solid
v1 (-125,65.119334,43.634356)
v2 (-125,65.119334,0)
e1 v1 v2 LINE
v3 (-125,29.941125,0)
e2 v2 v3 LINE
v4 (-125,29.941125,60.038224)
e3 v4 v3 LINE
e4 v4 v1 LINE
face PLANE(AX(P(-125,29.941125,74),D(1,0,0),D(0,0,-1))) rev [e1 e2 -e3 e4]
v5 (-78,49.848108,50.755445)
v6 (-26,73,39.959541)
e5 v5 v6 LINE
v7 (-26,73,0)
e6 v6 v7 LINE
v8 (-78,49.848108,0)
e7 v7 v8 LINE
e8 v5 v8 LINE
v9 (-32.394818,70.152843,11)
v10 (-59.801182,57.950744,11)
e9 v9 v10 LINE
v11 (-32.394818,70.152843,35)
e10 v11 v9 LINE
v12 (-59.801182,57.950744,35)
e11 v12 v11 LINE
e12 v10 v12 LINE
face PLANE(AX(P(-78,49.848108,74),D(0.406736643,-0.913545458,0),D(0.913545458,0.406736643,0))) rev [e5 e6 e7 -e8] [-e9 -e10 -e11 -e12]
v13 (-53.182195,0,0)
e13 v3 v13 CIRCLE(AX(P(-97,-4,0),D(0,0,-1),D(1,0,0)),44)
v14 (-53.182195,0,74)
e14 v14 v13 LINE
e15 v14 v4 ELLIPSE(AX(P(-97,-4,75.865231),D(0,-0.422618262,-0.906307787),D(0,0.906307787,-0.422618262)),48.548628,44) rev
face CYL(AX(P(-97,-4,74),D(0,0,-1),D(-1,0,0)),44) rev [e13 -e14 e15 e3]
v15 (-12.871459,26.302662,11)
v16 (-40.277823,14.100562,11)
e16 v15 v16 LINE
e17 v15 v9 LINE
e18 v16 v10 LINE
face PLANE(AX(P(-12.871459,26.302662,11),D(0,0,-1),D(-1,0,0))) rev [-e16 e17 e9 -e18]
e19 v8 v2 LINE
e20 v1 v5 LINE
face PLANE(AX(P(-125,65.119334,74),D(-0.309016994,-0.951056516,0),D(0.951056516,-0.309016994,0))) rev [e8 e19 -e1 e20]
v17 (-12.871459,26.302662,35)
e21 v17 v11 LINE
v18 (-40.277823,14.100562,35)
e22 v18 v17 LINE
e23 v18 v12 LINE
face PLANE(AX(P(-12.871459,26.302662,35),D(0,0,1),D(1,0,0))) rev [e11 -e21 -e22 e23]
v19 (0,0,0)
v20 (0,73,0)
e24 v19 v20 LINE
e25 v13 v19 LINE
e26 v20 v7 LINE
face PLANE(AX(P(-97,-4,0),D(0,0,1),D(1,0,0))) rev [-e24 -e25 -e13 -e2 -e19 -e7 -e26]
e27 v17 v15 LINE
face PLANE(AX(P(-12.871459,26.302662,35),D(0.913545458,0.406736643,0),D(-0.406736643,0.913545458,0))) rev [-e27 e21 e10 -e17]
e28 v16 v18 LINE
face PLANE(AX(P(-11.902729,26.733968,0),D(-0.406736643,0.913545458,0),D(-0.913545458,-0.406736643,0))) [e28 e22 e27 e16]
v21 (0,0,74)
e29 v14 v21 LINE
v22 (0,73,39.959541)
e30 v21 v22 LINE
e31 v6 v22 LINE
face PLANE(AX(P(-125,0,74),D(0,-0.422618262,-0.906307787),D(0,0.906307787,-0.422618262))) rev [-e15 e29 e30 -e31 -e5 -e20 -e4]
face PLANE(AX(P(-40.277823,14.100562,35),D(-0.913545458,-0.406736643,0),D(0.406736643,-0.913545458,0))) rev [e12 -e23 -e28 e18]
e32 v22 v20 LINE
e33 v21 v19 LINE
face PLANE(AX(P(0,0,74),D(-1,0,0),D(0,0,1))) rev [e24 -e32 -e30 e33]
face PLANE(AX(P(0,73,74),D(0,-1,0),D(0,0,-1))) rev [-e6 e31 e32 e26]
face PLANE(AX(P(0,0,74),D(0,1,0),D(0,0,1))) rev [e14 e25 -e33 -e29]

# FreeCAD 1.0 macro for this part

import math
import FreeCAD as App
import Part
import Sketcher
from FreeCAD import Vector
Q = App.Units.Quantity


def add_polygon(sketch, points):
    """Adds a closed chain of lines whose ends are joined by coincident constraints."""
    first, n = sketch.GeometryCount, len(points)
    for a, b in zip(points, points[1:] + points[:1]):
        sketch.addGeometry(Part.LineSegment(App.Vector(*a, 0), App.Vector(*b, 0)), False)
    for i in range(n):
        sketch.addConstraint(Sketcher.Constraint("Coincident", first + i, 2, first + (i + 1) % n, 1))

doc = App.newDocument("Part")
body = doc.addObject("PartDesign::Body", "Body")

sketch1 = body.newObject("Sketcher::SketchObject", "Sketch")
sketch1.AttachmentSupport = (doc.getObject("XY_Plane"), [""])
sketch1.MapMode = "FlatFace"
sketch1.addGeometry(Part.LineSegment(Vector(-53, 0, 0), Vector(0, 0, 0)), False)
sketch1.addGeometry(Part.LineSegment(Vector(0, 0, 0), Vector(0, 73, 0)), False)
sketch1.addGeometry(Part.LineSegment(Vector(0, 73, 0), Vector(-26, 73, 0)), False)
sketch1.addGeometry(Part.LineSegment(Vector(-26, 73, 0), Vector(-78, 50, 0)), False)
sketch1.addGeometry(Part.LineSegment(Vector(-78, 50, 0), Vector(-125, 65, 0)), False)
sketch1.addGeometry(Part.LineSegment(Vector(-125, 65, 0), Vector(-125, 30, 0)), False)
sketch1.addGeometry(Part.ArcOfCircle(Part.Circle(Vector(-97, -4, 0), Vector(0, 0, 1), 44), math.radians(5), math.radians(130)), False)
sketch1.addConstraint(Sketcher.Constraint("Coincident", 0, 2, 1, 1))
sketch1.addConstraint(Sketcher.Constraint("Coincident", 1, 2, 2, 1))
sketch1.addConstraint(Sketcher.Constraint("Coincident", 2, 2, 3, 1))
sketch1.addConstraint(Sketcher.Constraint("Coincident", 3, 2, 4, 1))
sketch1.addConstraint(Sketcher.Constraint("Coincident", 4, 2, 5, 1))
sketch1.addConstraint(Sketcher.Constraint("Coincident", 5, 2, 6, 2))
sketch1.addConstraint(Sketcher.Constraint("Coincident", 6, 1, 0, 1))
sketch1.addConstraint(Sketcher.Constraint("Horizontal", 0))
sketch1.addConstraint(Sketcher.Constraint("Vertical", 1))
sketch1.addConstraint(Sketcher.Constraint("Horizontal", 2))
sketch1.addConstraint(Sketcher.Constraint("Vertical", 5))
sketch1.addConstraint(Sketcher.Constraint("Coincident", 0, 2, -1, 1))
sketch1.addConstraint(Sketcher.Constraint("Radius", 6, 44.0))
sketch1.addConstraint(Sketcher.Constraint("DistanceX", 2, 2, 2, 1, 26.0))
sketch1.addConstraint(Sketcher.Constraint("DistanceY", 1, 1, 1, 2, 73.0))
sketch1.addConstraint(Sketcher.Constraint("Angle", 3, Q("-156 deg")))
sketch1.addConstraint(Sketcher.Constraint("Angle", 4, Q("162 deg")))
sketch1.addConstraint(Sketcher.Constraint("DistanceX", 6, 3, -1, 1, 97.0))
sketch1.addConstraint(Sketcher.Constraint("DistanceY", 6, 3, -1, 1, 4.0))
sketch1.addConstraint(Sketcher.Constraint("DistanceX", 3, 2, -1, 1, 78.0))
sketch1.addConstraint(Sketcher.Constraint("DistanceX", 4, 2, -1, 1, 125.0))
pad1 = body.newObject("PartDesign::Pad", "Pad")
pad1.Profile = sketch1
pad1.Length = 74

sketch2 = body.newObject("Sketcher::SketchObject", "Sketch001")
sketch2.AttachmentSupport = (doc.getObject("YZ_Plane"), [""])
sketch2.MapMode = "FlatFace"
add_polygon(sketch2, [(0, 74), (73, 40), (73, 74)])
sketch2.addConstraint(Sketcher.Constraint("Vertical", 1))
sketch2.addConstraint(Sketcher.Constraint("Horizontal", 2))
sketch2.addConstraint(Sketcher.Constraint("PointOnObject", 2, 2, -2))
sketch2.addConstraint(Sketcher.Constraint("DistanceX", 2, 2, 2, 1, 73.0))
sketch2.addConstraint(Sketcher.Constraint("Angle", 0, Q("-25 deg")))
sketch2.addConstraint(Sketcher.Constraint("DistanceY", -1, 1, 1, 2, 74.0))
pocket1 = body.newObject("PartDesign::Pocket", "Pocket")
pocket1.Profile = sketch2
pocket1.Type = "ThroughAll"

sketch3 = body.newObject("Sketcher::SketchObject", "Sketch002")
sketch3.Placement = App.Placement(Vector(-31.426088, 70.58415, 0), App.Rotation(Vector(0.913545458, 0.406736643, 0), Vector(0, 0, -1.000000001), Vector(-0.406736643, 0.913545458, 0), "ZXY"))
add_polygon(sketch3, [(-31, -11), (-31, -35), (-1, -35), (-1, -11)])
sketch3.addConstraint(Sketcher.Constraint("Vertical", 0))
sketch3.addConstraint(Sketcher.Constraint("Horizontal", 1))
sketch3.addConstraint(Sketcher.Constraint("Vertical", 2))
sketch3.addConstraint(Sketcher.Constraint("Horizontal", 3))
sketch3.addConstraint(Sketcher.Constraint("DistanceX", 1, 1, 1, 2, 30.0))
sketch3.addConstraint(Sketcher.Constraint("DistanceY", 0, 2, 0, 1, 24.0))
sketch3.addConstraint(Sketcher.Constraint("DistanceY", 0, 2, -1, 1, 35.0))
sketch3.addConstraint(Sketcher.Constraint("DistanceX", 0, 2, -1, 1, 31.060407))
pocket2 = body.newObject("PartDesign::Pocket", "Pocket001")
pocket2.Profile = sketch3
pocket2.Length = 48

doc.recompute()
